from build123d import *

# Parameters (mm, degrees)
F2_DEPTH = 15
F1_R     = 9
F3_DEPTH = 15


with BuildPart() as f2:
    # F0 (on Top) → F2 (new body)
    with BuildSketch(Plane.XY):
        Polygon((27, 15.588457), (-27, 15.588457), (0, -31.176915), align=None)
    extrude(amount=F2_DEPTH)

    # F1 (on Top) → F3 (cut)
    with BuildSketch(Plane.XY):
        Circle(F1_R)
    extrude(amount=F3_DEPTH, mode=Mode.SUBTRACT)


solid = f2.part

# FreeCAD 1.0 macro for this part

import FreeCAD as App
import Part
import Sketcher

V = App.Vector
Q = App.Units.Quantity

doc = App.newDocument("Part")
body = doc.addObject("PartDesign::Body", "Body")

# Sketch on XY plane
sketch1 = body.newObject("Sketcher::SketchObject", "Sketch")
sketch1.AttachmentSupport = (doc.getObject("XY_Plane"), [""])
sketch1.MapMode = "FlatFace"
sketch1.addGeometry(Part.LineSegment(V(27, 16, 0), V(-27, 16, 0)), False)
sketch1.addGeometry(Part.LineSegment(V(-27, 16, 0), V(0, -31, 0)), False)
sketch1.addGeometry(Part.LineSegment(V(0, -31, 0), V(27, 16, 0)), False)
sketch1.addConstraint(Sketcher.Constraint("Coincident", 0, 2, 1, 1))
sketch1.addConstraint(Sketcher.Constraint("Coincident", 1, 2, 2, 1))
sketch1.addConstraint(Sketcher.Constraint("Coincident", 2, 2, 0, 1))
sketch1.addConstraint(Sketcher.Constraint("Horizontal", 0))
sketch1.addConstraint(Sketcher.Constraint("PointOnObject", 1, 2, -2))
sketch1.addConstraint(Sketcher.Constraint("Equal", 1, 2))
sketch1.addConstraint(Sketcher.Constraint("DistanceX", 0, 2, 0, 1, 54.0))
sketch1.addConstraint(Sketcher.Constraint("Angle", 1, Q("-60 deg")))
sketch1.addConstraint(Sketcher.Constraint("DistanceY", -1, 1, 0, 2, 15.588457))
pad1 = body.newObject("PartDesign::Pad", "Pad")
pad1.Profile = sketch1
pad1.Length = 15

# Sketch on XY plane
sketch2 = body.newObject("Sketcher::SketchObject", "Sketch001")
sketch2.AttachmentSupport = (doc.getObject("XY_Plane"), [""])
sketch2.MapMode = "FlatFace"
sketch2.addGeometry(Part.Circle(V(0, 0, 0), V(0, 0, 1), 9), False)
sketch2.addConstraint(Sketcher.Constraint("Coincident", 0, 3, -1, 1))
sketch2.addConstraint(Sketcher.Constraint("Diameter", 0, 18.0))
pocket1 = body.newObject("PartDesign::Pocket", "Pocket")
pocket1.Profile = sketch2
pocket1.Length = 15
pocket1.Reversed = True

doc.recompute()
